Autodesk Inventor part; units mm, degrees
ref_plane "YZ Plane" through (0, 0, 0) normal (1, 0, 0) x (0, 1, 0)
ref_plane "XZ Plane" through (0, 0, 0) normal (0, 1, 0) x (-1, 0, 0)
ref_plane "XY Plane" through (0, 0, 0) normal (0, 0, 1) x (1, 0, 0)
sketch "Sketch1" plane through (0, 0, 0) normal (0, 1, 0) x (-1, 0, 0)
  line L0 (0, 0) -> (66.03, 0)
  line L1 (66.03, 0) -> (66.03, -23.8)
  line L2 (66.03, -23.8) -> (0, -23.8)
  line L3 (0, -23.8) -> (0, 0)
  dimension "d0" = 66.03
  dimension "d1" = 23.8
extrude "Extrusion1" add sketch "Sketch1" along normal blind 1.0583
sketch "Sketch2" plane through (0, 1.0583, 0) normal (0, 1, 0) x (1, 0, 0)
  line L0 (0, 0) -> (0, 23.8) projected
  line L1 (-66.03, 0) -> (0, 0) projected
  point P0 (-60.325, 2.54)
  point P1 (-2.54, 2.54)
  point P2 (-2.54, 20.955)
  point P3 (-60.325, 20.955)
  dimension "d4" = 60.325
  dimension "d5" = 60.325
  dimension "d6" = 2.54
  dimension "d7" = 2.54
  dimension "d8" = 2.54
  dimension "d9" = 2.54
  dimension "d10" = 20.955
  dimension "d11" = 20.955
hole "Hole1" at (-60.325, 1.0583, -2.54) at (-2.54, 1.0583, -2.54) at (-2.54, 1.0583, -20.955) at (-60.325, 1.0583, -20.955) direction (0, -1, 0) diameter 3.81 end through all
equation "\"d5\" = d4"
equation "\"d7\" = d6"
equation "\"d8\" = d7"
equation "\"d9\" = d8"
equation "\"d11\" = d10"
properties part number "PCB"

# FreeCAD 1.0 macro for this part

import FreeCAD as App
import Part
import Sketcher
Q = App.Units.Quantity


def add_polygon(sketch, points):
    """Adds a closed chain of lines whose ends are joined by coincident constraints."""
    first, n = sketch.GeometryCount, len(points)
    for a, b in zip(points, points[1:] + points[:1]):
        sketch.addGeometry(Part.LineSegment(App.Vector(*a, 0), App.Vector(*b, 0)), False)
    for i in range(n):
        sketch.addConstraint(Sketcher.Constraint("Coincident", first + i, 2, first + (i + 1) % n, 1))

doc = App.newDocument("Part")
body = doc.addObject("PartDesign::Body", "Body")

# Sketch on XZ plane
sketch1 = doc.addObject("Sketcher::SketchObject", "Sketch")
body.addObject(sketch1)
sketch1.AttachmentSupport = (doc.XZ_Plane, [""])
sketch1.MapMode = "FlatFace"
add_polygon(sketch1, [(-66, 0), (0, 0), (0, -24), (-66, -24)])  # lines 0-3
sketch1.addConstraint([
    Sketcher.Constraint("Horizontal", 0),
    Sketcher.Constraint("Vertical", 1),
    Sketcher.Constraint("Horizontal", 2),
    Sketcher.Constraint("Vertical", 3),
    Sketcher.Constraint("Coincident", 0, 2, -1, 1),
    Sketcher.Constraint("DistanceY", 1, 2, 1, 1, Q("0.937 in")),
    Sketcher.Constraint("DistanceX", 0, 1, 0, 2, Q("2.5996 in")),
])
pad1 = doc.addObject("PartDesign::Pad", "Pad")
body.addObject(pad1)
pad1.Profile = sketch1
pad1.Length = 1.0583
pad1.Reversed = True

# Sketch on XZ plane
sketch2 = doc.addObject("Sketcher::SketchObject", "Sketch001")
body.addObject(sketch2)
sketch2.AttachmentSupport = (doc.XZ_Plane, [""])
sketch2.MapMode = "FlatFace"
sketch2.AttachmentOffset = App.Placement(App.Vector(0, 0, -1.0583), App.Rotation())
sketch2.addGeometry([
    Part.Circle(App.Vector(-60.3, -2.5, 0), App.Vector(0, 0, 1), 1.9),
    Part.Circle(App.Vector(-2.5, -2.5, 0), App.Vector(0, 0, 1), 1.9),
    Part.Circle(App.Vector(-2.5, -21, 0), App.Vector(0, 0, 1), 1.9),
    Part.Circle(App.Vector(-60.3, -21, 0), App.Vector(0, 0, 1), 1.9),
], False)
sketch2.addConstraint([
    Sketcher.Constraint("Equal", 0, 1),
    Sketcher.Constraint("Equal", 1, 2),
    Sketcher.Constraint("Equal", 2, 3),
    Sketcher.Constraint("Horizontal", 0, 3, 1, 3),
    Sketcher.Constraint("Horizontal", 2, 3, 3, 3),
    Sketcher.Constraint("Vertical", 1, 3, 2, 3),
    Sketcher.Constraint("Vertical", 0, 3, 3, 3),
    Sketcher.Constraint("Diameter", 0, Q("0.15 in")),
    Sketcher.Constraint("DistanceY", 0, 3, -1, 1, Q("0.1 in")),
    Sketcher.Constraint("DistanceX", 1, 3, -1, 1, Q("0.1 in")),
    Sketcher.Constraint("DistanceX", 0, 3, -1, 1, Q("2.375 in")),
    Sketcher.Constraint("DistanceY", 2, 3, -1, 1, Q("0.825 in")),
])
doc.recompute()
hole = doc.addObject("PartDesign::Hole", "Hole")
body.addObject(hole)
hole.Profile = sketch2
hole.ThreadType = "None"
hole.Diameter = Q("0.15 in")
hole.DepthType = "ThroughAll"
hole.Reversed = True

doc.recompute()
